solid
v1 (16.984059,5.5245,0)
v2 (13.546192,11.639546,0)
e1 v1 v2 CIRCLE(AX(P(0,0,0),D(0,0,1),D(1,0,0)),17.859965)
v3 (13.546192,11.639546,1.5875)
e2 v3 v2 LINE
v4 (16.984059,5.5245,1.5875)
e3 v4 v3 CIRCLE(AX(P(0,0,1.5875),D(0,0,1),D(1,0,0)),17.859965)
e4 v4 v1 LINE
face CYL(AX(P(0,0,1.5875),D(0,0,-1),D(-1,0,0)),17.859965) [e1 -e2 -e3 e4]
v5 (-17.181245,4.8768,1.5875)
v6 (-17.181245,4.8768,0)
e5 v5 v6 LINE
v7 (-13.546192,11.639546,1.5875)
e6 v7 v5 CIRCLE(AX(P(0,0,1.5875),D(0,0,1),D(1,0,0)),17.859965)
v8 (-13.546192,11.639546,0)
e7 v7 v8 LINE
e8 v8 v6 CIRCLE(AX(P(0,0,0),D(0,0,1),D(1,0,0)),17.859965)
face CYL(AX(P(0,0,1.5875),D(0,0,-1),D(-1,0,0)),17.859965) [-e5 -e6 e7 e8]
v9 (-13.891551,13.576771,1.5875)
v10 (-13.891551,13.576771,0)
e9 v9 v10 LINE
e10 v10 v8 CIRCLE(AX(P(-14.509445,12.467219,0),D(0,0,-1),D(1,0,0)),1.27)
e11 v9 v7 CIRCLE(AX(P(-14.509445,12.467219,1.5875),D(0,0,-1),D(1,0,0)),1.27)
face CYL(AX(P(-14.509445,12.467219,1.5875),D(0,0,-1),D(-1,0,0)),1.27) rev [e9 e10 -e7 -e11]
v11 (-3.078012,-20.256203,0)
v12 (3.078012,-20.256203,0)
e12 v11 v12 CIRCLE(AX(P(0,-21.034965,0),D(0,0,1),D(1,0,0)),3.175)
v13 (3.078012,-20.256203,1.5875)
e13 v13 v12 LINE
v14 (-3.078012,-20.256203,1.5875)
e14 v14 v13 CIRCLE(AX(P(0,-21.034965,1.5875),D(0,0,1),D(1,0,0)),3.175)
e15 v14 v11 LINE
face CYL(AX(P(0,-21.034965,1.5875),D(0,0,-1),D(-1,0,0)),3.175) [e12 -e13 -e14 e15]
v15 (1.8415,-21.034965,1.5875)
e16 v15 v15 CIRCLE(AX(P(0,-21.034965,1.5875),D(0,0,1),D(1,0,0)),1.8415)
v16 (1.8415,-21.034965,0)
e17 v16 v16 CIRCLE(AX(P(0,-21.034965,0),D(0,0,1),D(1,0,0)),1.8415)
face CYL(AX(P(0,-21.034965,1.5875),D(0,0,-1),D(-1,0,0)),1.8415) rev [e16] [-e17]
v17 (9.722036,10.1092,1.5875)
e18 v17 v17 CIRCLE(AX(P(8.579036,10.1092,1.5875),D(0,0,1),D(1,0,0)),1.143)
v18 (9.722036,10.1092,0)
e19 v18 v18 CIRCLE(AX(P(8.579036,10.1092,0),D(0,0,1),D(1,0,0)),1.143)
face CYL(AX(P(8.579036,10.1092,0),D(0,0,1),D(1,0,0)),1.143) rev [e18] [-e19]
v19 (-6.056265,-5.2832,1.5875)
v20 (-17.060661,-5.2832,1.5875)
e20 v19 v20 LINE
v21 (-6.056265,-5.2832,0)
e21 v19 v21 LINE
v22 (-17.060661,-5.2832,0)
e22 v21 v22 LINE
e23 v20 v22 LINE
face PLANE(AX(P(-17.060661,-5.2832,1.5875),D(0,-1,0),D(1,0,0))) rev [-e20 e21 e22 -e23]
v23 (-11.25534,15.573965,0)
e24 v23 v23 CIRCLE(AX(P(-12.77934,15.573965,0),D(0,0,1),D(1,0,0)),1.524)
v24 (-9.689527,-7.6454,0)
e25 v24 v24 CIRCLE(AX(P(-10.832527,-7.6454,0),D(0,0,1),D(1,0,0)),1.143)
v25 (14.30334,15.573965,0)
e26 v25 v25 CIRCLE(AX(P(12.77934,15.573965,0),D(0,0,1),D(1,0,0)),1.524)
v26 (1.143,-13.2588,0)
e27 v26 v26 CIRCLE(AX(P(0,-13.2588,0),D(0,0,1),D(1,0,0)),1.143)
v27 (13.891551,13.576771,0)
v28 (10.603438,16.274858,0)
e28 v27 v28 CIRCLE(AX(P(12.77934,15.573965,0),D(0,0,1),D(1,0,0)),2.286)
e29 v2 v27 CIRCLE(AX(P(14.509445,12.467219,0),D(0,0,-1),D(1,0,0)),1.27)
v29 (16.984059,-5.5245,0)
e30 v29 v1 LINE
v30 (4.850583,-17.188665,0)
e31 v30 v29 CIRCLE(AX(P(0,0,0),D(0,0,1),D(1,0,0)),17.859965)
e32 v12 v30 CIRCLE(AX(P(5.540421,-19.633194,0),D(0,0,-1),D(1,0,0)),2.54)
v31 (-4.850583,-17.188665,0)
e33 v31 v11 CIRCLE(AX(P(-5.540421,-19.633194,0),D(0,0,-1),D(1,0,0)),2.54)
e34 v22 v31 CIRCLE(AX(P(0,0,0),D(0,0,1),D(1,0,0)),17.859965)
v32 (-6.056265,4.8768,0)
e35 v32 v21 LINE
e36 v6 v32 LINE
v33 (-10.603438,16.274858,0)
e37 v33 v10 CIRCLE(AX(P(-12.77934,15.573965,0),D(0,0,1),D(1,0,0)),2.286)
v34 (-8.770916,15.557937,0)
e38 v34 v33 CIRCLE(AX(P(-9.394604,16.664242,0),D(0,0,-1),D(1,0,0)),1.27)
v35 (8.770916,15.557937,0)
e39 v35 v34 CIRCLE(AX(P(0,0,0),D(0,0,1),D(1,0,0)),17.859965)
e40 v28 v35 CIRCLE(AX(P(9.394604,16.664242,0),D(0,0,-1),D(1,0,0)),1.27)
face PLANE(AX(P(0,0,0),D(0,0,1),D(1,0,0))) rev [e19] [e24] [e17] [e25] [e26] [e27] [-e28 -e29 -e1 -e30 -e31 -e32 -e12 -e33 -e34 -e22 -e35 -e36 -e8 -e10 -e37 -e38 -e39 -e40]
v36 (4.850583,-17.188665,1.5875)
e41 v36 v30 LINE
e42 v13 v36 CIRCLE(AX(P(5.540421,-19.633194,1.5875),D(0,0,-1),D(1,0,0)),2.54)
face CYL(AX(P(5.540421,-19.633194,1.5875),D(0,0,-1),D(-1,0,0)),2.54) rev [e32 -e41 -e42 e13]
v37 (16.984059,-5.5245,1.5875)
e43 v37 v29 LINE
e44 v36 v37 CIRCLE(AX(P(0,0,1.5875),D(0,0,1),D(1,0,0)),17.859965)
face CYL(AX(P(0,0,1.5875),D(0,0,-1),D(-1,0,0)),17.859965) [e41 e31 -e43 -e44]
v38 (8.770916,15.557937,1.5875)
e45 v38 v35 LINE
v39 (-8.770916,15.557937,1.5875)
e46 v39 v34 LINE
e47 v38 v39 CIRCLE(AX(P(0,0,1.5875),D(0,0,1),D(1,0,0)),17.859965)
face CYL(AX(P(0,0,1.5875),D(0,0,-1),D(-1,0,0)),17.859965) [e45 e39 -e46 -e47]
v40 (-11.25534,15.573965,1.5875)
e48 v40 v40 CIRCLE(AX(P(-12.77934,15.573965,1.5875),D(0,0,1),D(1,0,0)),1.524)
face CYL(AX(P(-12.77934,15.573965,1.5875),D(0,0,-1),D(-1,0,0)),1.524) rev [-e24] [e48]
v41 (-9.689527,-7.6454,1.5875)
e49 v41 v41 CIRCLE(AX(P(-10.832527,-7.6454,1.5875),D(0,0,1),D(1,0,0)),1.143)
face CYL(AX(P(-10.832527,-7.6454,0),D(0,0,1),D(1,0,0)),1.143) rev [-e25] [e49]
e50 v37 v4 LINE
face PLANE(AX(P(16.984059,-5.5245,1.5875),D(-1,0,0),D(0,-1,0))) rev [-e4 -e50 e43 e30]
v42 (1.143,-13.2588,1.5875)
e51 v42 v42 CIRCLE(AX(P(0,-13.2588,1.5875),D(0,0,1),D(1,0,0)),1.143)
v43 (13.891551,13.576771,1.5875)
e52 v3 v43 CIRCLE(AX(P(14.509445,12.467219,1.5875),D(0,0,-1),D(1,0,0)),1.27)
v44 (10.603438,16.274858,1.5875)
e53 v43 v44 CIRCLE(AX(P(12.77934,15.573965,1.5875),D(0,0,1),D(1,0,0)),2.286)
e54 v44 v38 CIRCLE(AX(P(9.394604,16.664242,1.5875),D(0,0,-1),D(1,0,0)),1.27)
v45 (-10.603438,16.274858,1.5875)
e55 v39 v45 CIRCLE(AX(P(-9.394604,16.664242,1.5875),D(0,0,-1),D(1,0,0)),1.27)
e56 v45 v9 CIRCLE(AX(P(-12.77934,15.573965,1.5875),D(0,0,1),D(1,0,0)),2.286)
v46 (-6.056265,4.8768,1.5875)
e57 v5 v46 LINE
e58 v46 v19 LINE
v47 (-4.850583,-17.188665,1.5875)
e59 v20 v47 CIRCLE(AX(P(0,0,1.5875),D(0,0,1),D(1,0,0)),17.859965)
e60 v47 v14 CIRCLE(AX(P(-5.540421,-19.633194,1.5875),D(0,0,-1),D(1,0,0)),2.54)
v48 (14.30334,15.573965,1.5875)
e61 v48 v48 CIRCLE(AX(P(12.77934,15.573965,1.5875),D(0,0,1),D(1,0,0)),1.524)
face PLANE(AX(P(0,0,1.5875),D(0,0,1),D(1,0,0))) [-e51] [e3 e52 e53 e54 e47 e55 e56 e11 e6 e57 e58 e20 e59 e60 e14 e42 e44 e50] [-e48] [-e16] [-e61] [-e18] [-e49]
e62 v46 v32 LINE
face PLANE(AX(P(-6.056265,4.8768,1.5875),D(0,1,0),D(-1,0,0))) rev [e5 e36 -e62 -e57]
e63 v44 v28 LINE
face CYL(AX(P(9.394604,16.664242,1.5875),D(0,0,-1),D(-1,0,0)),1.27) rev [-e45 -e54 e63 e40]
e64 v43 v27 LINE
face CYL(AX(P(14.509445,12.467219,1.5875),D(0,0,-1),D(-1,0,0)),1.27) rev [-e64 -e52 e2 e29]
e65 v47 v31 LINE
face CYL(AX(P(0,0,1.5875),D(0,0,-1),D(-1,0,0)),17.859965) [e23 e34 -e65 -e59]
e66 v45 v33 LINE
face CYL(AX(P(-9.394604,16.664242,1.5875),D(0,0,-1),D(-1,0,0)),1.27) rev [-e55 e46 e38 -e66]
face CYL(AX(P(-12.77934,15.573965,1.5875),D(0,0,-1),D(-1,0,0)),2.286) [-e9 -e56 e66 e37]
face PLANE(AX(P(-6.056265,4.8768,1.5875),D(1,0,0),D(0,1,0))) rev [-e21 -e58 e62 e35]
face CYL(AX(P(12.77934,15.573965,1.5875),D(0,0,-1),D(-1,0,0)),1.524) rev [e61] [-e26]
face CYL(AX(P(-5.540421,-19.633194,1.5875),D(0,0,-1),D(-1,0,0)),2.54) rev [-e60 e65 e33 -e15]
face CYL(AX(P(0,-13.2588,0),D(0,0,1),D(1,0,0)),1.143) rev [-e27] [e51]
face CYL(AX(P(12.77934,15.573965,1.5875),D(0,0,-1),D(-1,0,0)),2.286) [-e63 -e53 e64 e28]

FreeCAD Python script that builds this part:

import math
import FreeCAD as App
import Part
import Sketcher

V = App.Vector
Q = App.Units.Quantity

doc = App.newDocument("Part")
params = doc.addObject("Spreadsheet::Sheet", "Params")
for row, (alias, value) in enumerate([
    ("sketch1_radius", "0.1 in"),
    ("sketch1_diameter", "0.12 in"),
    ("sketch1_radius2", "0.05 in"),
    ("sketch1_radius3", "0.09 in"),
    ("sketch1_diameter2", "0.145 in"),
    ("pad1_length", "0.0625 in"),
    ("sketch2_diameter", "0.09 in"),
], start=1):
    params.set(f"A{row}", alias)
    params.set(f"B{row}", "=" + value)
    params.setAlias(f"B{row}", alias)

body = doc.addObject("PartDesign::Body", "Body")

# Sketch on XY plane
sketch1 = doc.addObject("Sketcher::SketchObject", "Sketch")
body.addObject(sketch1)
sketch1.AttachmentSupport = (doc.XY_Plane, [""])
sketch1.MapMode = "FlatFace"
sketch1.addGeometry([
    Part.LineSegment(V(-17.181245, 4.8768, 0), V(-6.056265, 4.8768, 0)),  # 0
    Part.LineSegment(V(-6.056265, 4.8768, 0), V(-6.056265, -5.2832, 0)),  # 1
    Part.LineSegment(V(-6.056265, -5.2832, 0), V(-17.060661, -5.2832, 0)),  # 2
    Part.ArcOfCircle(Part.Circle(V(0, 0, 0), V(0, 0, 1), 17.859965), math.radians(-162.793738), math.radians(-105.758887)),  # 3
    Part.ArcOfCircle(Part.Circle(V(-5.540421, -19.633194, 0), V(0, 0, 1), 2.54), math.radians(-14.198337), math.radians(74.241113)),  # 4
    Part.ArcOfCircle(Part.Circle(V(0, -21.034965, 0), V(0, 0, 1), 3.175), math.radians(165.801663), math.radians(374.198337)),  # 5
    Part.ArcOfCircle(Part.Circle(V(5.540421, -19.633194, 0), V(0, 0, 1), 2.54), math.radians(105.758887), math.radians(194.198337)),  # 6
    Part.ArcOfCircle(Part.Circle(V(0, 0, 0), V(0, 0, 1), 17.859965), math.radians(-74.241113), math.radians(-18.018443)),  # 7
    Part.LineSegment(V(16.984059, -5.5245, 0), V(16.984059, 5.5245, 0)),  # 8
    Part.ArcOfCircle(Part.Circle(V(0, 0, 0), V(0, 0, 1), 17.859965), math.radians(18.018443), math.radians(40.67077)),  # 9
    Part.ArcOfCircle(Part.Circle(V(14.509445, 12.467219, 0), V(0, 0, 1), 1.27), math.radians(119.112858), math.radians(220.67077)),  # 10
    Part.ArcOfCircle(Part.Circle(V(12.77934, 15.573965, 0), V(0, 0, 1), 2.286), math.radians(-60.887142), math.radians(162.145422)),  # 11
    Part.ArcOfCircle(Part.Circle(V(9.394604, 16.664242, 0), V(0, 0, 1), 1.27), math.radians(-119.41249), math.radians(-17.854578)),  # 12
    Part.ArcOfCircle(Part.Circle(V(0, 0, 0), V(0, 0, 1), 17.859965), math.radians(60.58751), math.radians(119.41249)),  # 13
    Part.ArcOfCircle(Part.Circle(V(-9.394604, 16.664242, 0), V(0, 0, 1), 1.27), math.radians(-162.145422), math.radians(-60.58751)),  # 14
    Part.ArcOfCircle(Part.Circle(V(-12.77934, 15.573965, 0), V(0, 0, 1), 2.286), math.radians(17.854578), math.radians(240.887142)),  # 15
    Part.ArcOfCircle(Part.Circle(V(-14.509445, 12.467219, 0), V(0, 0, 1), 1.27), math.radians(-40.67077), math.radians(60.887142)),  # 16
    Part.ArcOfCircle(Part.Circle(V(0, 0, 0), V(0, 0, 1), 17.859965), math.radians(139.32923), math.radians(164.153704)),  # 17
    Part.Circle(V(0, -21.034965, 0), V(0, 0, 1), 1.8415),  # 18
    Part.Circle(V(12.77934, 15.573965, 0), V(0, 0, 1), 1.524),  # 19
    Part.Circle(V(-12.77934, 15.573965, 0), V(0, 0, 1), 1.524),  # 20
], False)
sketch1.addConstraint([
    Sketcher.Constraint("Coincident", 0, 2, 1, 1),
    Sketcher.Constraint("Coincident", 1, 2, 2, 1),
    Sketcher.Constraint("Coincident", 2, 2, 3, 1),
    Sketcher.Constraint("Tangent", 3, 2, 4, 2),
    Sketcher.Constraint("Tangent", 4, 1, 5, 1),
    Sketcher.Constraint("Tangent", 5, 2, 6, 2),
    Sketcher.Constraint("Tangent", 6, 1, 7, 1),
    Sketcher.Constraint("Coincident", 7, 2, 8, 1),
    Sketcher.Constraint("Coincident", 8, 2, 9, 1),
    Sketcher.Constraint("Tangent", 9, 2, 10, 2),
    Sketcher.Constraint("Tangent", 10, 1, 11, 1),
    Sketcher.Constraint("Tangent", 11, 2, 12, 2),
    Sketcher.Constraint("Tangent", 12, 1, 13, 1),
    Sketcher.Constraint("Tangent", 13, 2, 14, 2),
    Sketcher.Constraint("Tangent", 14, 1, 15, 1),
    Sketcher.Constraint("Tangent", 15, 2, 16, 2),
    Sketcher.Constraint("Tangent", 16, 1, 17, 1),
    Sketcher.Constraint("Coincident", 17, 2, 0, 1),
    Sketcher.Constraint("Horizontal", 0),
    Sketcher.Constraint("Vertical", 1),
    Sketcher.Constraint("Horizontal", 2),
    Sketcher.Constraint("Vertical", 8),
    Sketcher.Constraint("Coincident", 3, 3, -1, 1),
    Sketcher.Constraint("Coincident", 7, 3, -1, 1),
    Sketcher.Constraint("Coincident", 9, 3, -1, 1),
    Sketcher.Constraint("Coincident", 13, 3, -1, 1),
    Sketcher.Constraint("Coincident", 17, 3, -1, 1),
    Sketcher.Constraint("Coincident", 18, 3, 5, 3),
    Sketcher.Constraint("Coincident", 19, 3, 11, 3),
    Sketcher.Constraint("Coincident", 20, 3, 15, 3),
    Sketcher.Constraint("Equal", 4, 6),
    Sketcher.Constraint("Equal", 3, 7),
    Sketcher.Constraint("Equal", 7, 9),
    Sketcher.Constraint("Equal", 10, 12),
    Sketcher.Constraint("Equal", 9, 13),
    Sketcher.Constraint("Equal", 12, 14),
    Sketcher.Constraint("Equal", 11, 15),
    Sketcher.Constraint("Equal", 14, 16),
    Sketcher.Constraint("Equal", 13, 17),
    Sketcher.Constraint("Equal", 19, 20),
    Sketcher.Constraint("Symmetric", 11, 3, 15, 3, -2),
    Sketcher.Constraint("PointOnObject", 5, 3, -2),
    Sketcher.Constraint("Radius", 4, Q("0.1 in")),
    Sketcher.Constraint("Diameter", 19, Q("0.12 in")),
    Sketcher.Constraint("Radius", 10, Q("0.05 in")),
    Sketcher.Constraint("Radius", 11, Q("0.09 in")),
    Sketcher.Constraint("Diameter", 18, Q("0.145 in")),
    Sketcher.Constraint("DistanceY", 1, 2, 1, 1, Q("0.4 in")),
    Sketcher.Constraint("Radius", 5, Q("0.125 in")),
    Sketcher.Constraint("DistanceY", 8, 1, 8, 2, Q("0.435 in")),
    Sketcher.Constraint("DistanceY", -1, 1, 0, 2, Q("0.192 in")),
    Sketcher.Constraint("Radius", 3, Q("17.859965 mm")),
    Sketcher.Constraint("DistanceX", 12, 1, 10, 1, Q("0.2015998 in")),
    Sketcher.Constraint("DistanceX", 0, 1, 0, 2, Q("11.124979 mm")),
    Sketcher.Constraint("DistanceY", 5, 3, 3, 2, Q("3.8463 mm")),
    Sketcher.Constraint("DistanceX", 11, 2, 11, 3, Q("2.175901 mm")),
])
sketch1.setExpression("Constraints[42]", "Params.sketch1_radius")
sketch1.setExpression("Constraints[43]", "Params.sketch1_diameter")
sketch1.setExpression("Constraints[44]", "Params.sketch1_radius2")
sketch1.setExpression("Constraints[45]", "Params.sketch1_radius3")
sketch1.setExpression("Constraints[46]", "Params.sketch1_diameter2")
pad1 = doc.addObject("PartDesign::Pad", "Pad")
body.addObject(pad1)
pad1.Profile = sketch1
pad1.setExpression("Length", "Params.pad1_length")

# Sketch on XY plane
sketch2 = doc.addObject("Sketcher::SketchObject", "Sketch001")
body.addObject(sketch2)
sketch2.AttachmentSupport = (doc.XY_Plane, [""])
sketch2.MapMode = "FlatFace"
sketch2.AttachmentOffset = App.Placement(V(0, 0, 0.0625 * 25.4), App.Rotation())
sketch2.addGeometry([
    Part.Circle(V(8.579036, 10.1092, 0), V(0, 0, 1), 1.143),
    Part.Circle(V(-10.832527, -7.6454, 0), V(0, 0, 1), 1.143),
    Part.Circle(V(0, -13.2588, 0), V(0, 0, 1), 1.143),
], False)
sketch2.addConstraint([
    Sketcher.Constraint("Equal", 0, 1),
    Sketcher.Constraint("Equal", 1, 2),
    Sketcher.Constraint("PointOnObject", 2, 3, -2),
    Sketcher.Constraint("Diameter", 0, Q("0.09 in")),
    Sketcher.Constraint("DistanceY", 2, 3, 0, 3, Q("0.92 in")),
    Sketcher.Constraint("DistanceY", -1, 1, 0, 3, Q("0.398 in")),
    Sketcher.Constraint("DistanceY", 1, 3, -1, 1, Q("0.301 in")),
    Sketcher.Constraint("DistanceX", -1, 1, 0, 3, Q("8.579036 mm")),
    Sketcher.Constraint("DistanceX", 1, 3, -1, 1, Q("10.832527 mm")),
])
sketch2.setExpression("Constraints[3]", "Params.sketch2_diameter")
pocket1 = doc.addObject("PartDesign::Pocket", "Pocket")
body.addObject(pocket1)
pocket1.Profile = sketch2
pocket1.Type = "ThroughAll"

doc.recompute()
